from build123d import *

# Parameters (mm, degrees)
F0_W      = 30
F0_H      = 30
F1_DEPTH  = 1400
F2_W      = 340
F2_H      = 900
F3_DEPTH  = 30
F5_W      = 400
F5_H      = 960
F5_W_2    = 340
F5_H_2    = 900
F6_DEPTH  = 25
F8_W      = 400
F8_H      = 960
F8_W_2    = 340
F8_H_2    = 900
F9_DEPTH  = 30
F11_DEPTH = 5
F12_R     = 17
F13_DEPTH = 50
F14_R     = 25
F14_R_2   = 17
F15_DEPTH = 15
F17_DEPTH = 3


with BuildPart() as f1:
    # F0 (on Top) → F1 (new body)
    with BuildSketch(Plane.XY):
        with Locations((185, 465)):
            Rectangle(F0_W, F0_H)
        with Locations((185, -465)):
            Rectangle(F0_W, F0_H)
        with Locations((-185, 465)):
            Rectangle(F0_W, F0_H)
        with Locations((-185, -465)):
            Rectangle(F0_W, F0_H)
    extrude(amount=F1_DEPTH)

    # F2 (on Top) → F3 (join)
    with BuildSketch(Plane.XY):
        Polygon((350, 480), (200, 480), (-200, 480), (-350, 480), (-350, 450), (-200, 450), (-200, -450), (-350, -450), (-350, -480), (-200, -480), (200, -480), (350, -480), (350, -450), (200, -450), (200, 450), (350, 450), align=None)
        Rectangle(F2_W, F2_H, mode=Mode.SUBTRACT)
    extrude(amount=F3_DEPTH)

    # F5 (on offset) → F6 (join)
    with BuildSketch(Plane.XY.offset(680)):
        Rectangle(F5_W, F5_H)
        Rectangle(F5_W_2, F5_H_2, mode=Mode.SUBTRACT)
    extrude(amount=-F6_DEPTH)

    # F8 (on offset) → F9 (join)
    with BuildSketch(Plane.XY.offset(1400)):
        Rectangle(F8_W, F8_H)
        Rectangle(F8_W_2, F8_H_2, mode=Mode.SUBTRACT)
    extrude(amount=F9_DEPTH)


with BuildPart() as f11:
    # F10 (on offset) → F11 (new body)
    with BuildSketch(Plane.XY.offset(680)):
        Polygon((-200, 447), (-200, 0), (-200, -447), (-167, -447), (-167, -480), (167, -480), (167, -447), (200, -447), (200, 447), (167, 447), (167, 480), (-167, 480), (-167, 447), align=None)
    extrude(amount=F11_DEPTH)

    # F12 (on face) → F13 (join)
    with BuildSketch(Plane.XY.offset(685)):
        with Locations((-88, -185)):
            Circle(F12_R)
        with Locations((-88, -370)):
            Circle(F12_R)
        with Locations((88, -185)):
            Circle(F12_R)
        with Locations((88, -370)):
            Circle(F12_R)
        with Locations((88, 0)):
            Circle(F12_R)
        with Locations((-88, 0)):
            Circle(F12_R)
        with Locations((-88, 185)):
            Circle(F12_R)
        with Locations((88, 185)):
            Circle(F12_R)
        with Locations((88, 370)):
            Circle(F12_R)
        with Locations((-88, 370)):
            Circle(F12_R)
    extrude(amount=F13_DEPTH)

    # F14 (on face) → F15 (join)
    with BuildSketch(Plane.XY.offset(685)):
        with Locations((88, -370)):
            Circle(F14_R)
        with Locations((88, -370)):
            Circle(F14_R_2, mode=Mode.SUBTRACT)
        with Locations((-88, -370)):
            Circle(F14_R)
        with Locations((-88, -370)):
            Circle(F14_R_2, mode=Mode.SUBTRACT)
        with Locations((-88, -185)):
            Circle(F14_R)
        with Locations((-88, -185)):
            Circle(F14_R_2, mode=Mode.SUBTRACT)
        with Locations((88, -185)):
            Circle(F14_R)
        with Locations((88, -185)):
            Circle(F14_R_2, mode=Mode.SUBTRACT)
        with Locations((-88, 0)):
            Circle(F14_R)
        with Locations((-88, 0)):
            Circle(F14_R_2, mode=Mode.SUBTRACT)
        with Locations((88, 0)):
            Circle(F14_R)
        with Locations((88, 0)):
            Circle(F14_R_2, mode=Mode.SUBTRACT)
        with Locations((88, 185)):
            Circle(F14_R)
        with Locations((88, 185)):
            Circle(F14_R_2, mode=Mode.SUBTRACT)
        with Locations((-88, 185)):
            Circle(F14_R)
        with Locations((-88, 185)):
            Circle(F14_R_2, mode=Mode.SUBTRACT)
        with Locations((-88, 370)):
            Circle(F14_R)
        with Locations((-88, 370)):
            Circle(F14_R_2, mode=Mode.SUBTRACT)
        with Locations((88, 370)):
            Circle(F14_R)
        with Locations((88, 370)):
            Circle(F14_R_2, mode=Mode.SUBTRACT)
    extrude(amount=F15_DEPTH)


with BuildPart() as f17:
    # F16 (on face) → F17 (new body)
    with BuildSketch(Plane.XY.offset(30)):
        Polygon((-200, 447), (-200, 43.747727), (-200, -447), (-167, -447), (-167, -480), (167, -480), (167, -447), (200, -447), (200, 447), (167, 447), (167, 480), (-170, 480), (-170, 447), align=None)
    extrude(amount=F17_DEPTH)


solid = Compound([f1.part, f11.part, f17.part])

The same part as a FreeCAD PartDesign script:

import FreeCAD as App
import Part
import Sketcher
from FreeCAD import Vector
Q = App.Units.Quantity


def add_polygon(sketch, points):
    """Adds a closed chain of lines whose ends are joined by coincident constraints."""
    first, n = sketch.GeometryCount, len(points)
    for a, b in zip(points, points[1:] + points[:1]):
        sketch.addGeometry(Part.LineSegment(App.Vector(*a, 0), App.Vector(*b, 0)), False)
    for i in range(n):
        sketch.addConstraint(Sketcher.Constraint("Coincident", first + i, 2, first + (i + 1) % n, 1))

doc = App.newDocument("Part")
body = doc.addObject("PartDesign::Body", "Body")
body.AllowCompound = True

# Sketch on XY plane
sketch1 = body.newObject("Sketcher::SketchObject", "Sketch")
sketch1.AttachmentSupport = (doc.getObject("XY_Plane"), [""])
sketch1.MapMode = "FlatFace"
add_polygon(sketch1, [(170, 480), (170, 450), (200, 450), (200, 480)])  # lines 0-3
add_polygon(sketch1, [(170, -450), (170, -480), (200, -480), (200, -450)])  # lines 4-7
add_polygon(sketch1, [(-200, 480), (-200, 450), (-170, 450), (-170, 480)])  # lines 8-11
add_polygon(sketch1, [(-200, -450), (-200, -480), (-170, -480), (-170, -450)])  # lines 12-15
sketch1.addConstraint(Sketcher.Constraint("Vertical", 0))
sketch1.addConstraint(Sketcher.Constraint("Horizontal", 1))
sketch1.addConstraint(Sketcher.Constraint("Vertical", 2))
sketch1.addConstraint(Sketcher.Constraint("Horizontal", 3))
sketch1.addConstraint(Sketcher.Constraint("Vertical", 4))
sketch1.addConstraint(Sketcher.Constraint("Horizontal", 5))
sketch1.addConstraint(Sketcher.Constraint("Vertical", 6))
sketch1.addConstraint(Sketcher.Constraint("Horizontal", 7))
sketch1.addConstraint(Sketcher.Constraint("Vertical", 8))
sketch1.addConstraint(Sketcher.Constraint("Horizontal", 9))
sketch1.addConstraint(Sketcher.Constraint("Vertical", 10))
sketch1.addConstraint(Sketcher.Constraint("Horizontal", 11))
sketch1.addConstraint(Sketcher.Constraint("Vertical", 12))
sketch1.addConstraint(Sketcher.Constraint("Horizontal", 13))
sketch1.addConstraint(Sketcher.Constraint("Vertical", 14))
sketch1.addConstraint(Sketcher.Constraint("Horizontal", 15))
sketch1.addConstraint(Sketcher.Constraint("Symmetric", 6, 2, 8, 2, -1, 1))
sketch1.addConstraint(Sketcher.Constraint("Symmetric", 4, 2, 10, 2, -1, 1))
sketch1.addConstraint(Sketcher.Constraint("Symmetric", 2, 2, 12, 2, -1, 1))
sketch1.addConstraint(Sketcher.Constraint("Symmetric", 0, 2, 14, 2, -1, 1))
sketch1.addConstraint(Sketcher.Constraint("Symmetric", 1, 2, 8, 2, -2))
sketch1.addConstraint(Sketcher.Constraint("Symmetric", 3, 2, 10, 2, -2))
sketch1.addConstraint(Sketcher.Constraint("Equal", 15, 0))
sketch1.addConstraint(Sketcher.Constraint("DistanceX", 1, 1, 1, 2, Q("30 mm")))
sketch1.addConstraint(Sketcher.Constraint("DistanceX", -1, 1, 0, 2, Q("170 mm")))
sketch1.addConstraint(Sketcher.Constraint("DistanceY", -1, 1, 0, 2, Q("450 mm")))
pad1 = body.newObject("PartDesign::Pad", "Pad")
pad1.Profile = sketch1
pad1.Length = 1400

# Sketch on XY plane
sketch2 = body.newObject("Sketcher::SketchObject", "Sketch001")
sketch2.AttachmentSupport = (doc.getObject("XY_Plane"), [""])
sketch2.MapMode = "FlatFace"
add_polygon(sketch2, [(350, 480), (-350, 480), (-350, 450), (-200, 450), (-200, -450), (-350, -450), (-350, -480), (350, -480), (350, -450), (200, -450), (200, 450), (350, 450)])  # lines 0-11
add_polygon(sketch2, [(170, -450), (-170, -450), (-170, 450), (170, 450)])  # lines 12-15
sketch2.addConstraint(Sketcher.Constraint("Horizontal", 0))
sketch2.addConstraint(Sketcher.Constraint("Vertical", 1))
sketch2.addConstraint(Sketcher.Constraint("Horizontal", 2))
sketch2.addConstraint(Sketcher.Constraint("Vertical", 3))
sketch2.addConstraint(Sketcher.Constraint("Horizontal", 4))
sketch2.addConstraint(Sketcher.Constraint("Vertical", 5))
sketch2.addConstraint(Sketcher.Constraint("Horizontal", 6))
sketch2.addConstraint(Sketcher.Constraint("Vertical", 7))
sketch2.addConstraint(Sketcher.Constraint("Horizontal", 8))
sketch2.addConstraint(Sketcher.Constraint("Vertical", 9))
sketch2.addConstraint(Sketcher.Constraint("Horizontal", 10))
sketch2.addConstraint(Sketcher.Constraint("Vertical", 11))
sketch2.addConstraint(Sketcher.Constraint("Horizontal", 12))
sketch2.addConstraint(Sketcher.Constraint("Vertical", 13))
sketch2.addConstraint(Sketcher.Constraint("Horizontal", 14))
sketch2.addConstraint(Sketcher.Constraint("Vertical", 15))
sketch2.addConstraint(Sketcher.Constraint("Symmetric", 0, 2, 6, 2, -1, 1))
sketch2.addConstraint(Sketcher.Constraint("Symmetric", 2, 2, 8, 2, -1, 1))
sketch2.addConstraint(Sketcher.Constraint("Symmetric", 4, 2, 10, 2, -1, 1))
sketch2.addConstraint(Sketcher.Constraint("Symmetric", 12, 2, 14, 2, -1, 1))
sketch2.addConstraint(Sketcher.Constraint("Symmetric", 4, 2, 7, 2, -2))
sketch2.addConstraint(Sketcher.Constraint("Horizontal", 8, 2, 12, 2))
sketch2.addConstraint(Sketcher.Constraint("DistanceX", 0, 2, 0, 1, Q("700 mm")))
sketch2.addConstraint(Sketcher.Constraint("DistanceX", 2, 1, 2, 2, Q("150 mm")))
sketch2.addConstraint(Sketcher.Constraint("DistanceX", 12, 2, 12, 1, Q("340 mm")))
sketch2.addConstraint(Sketcher.Constraint("DistanceY", 1, 2, 1, 1, Q("30 mm")))
sketch2.addConstraint(Sketcher.Constraint("DistanceY", 3, 2, 3, 1, Q("900 mm")))
pad2 = body.newObject("PartDesign::Pad", "Pad001")
pad2.Profile = sketch2
pad2.Length = 30

# Sketch on XY plane
sketch3 = body.newObject("Sketcher::SketchObject", "Sketch002")
sketch3.AttachmentSupport = (doc.getObject("XY_Plane"), [""])
sketch3.MapMode = "FlatFace"
sketch3.AttachmentOffset = App.Placement(Vector(0, 0, 680), App.Rotation())
add_polygon(sketch3, [(-200, 480), (-200, -480), (200, -480), (200, 480)])  # lines 0-3
add_polygon(sketch3, [(170, -450), (-170, -450), (-170, 450), (170, 450)])  # lines 4-7
sketch3.addConstraint(Sketcher.Constraint("Vertical", 0))
sketch3.addConstraint(Sketcher.Constraint("Horizontal", 1))
sketch3.addConstraint(Sketcher.Constraint("Vertical", 2))
sketch3.addConstraint(Sketcher.Constraint("Horizontal", 3))
sketch3.addConstraint(Sketcher.Constraint("Horizontal", 4))
sketch3.addConstraint(Sketcher.Constraint("Vertical", 5))
sketch3.addConstraint(Sketcher.Constraint("Horizontal", 6))
sketch3.addConstraint(Sketcher.Constraint("Vertical", 7))
sketch3.addConstraint(Sketcher.Constraint("Symmetric", 0, 2, 2, 2, -1, 1))
sketch3.addConstraint(Sketcher.Constraint("Symmetric", 4, 2, 6, 2, -1, 1))
sketch3.addConstraint(Sketcher.Constraint("DistanceX", 1, 1, 1, 2, Q("400 mm")))
sketch3.addConstraint(Sketcher.Constraint("DistanceX", 4, 2, 4, 1, Q("340 mm")))
sketch3.addConstraint(Sketcher.Constraint("DistanceY", 0, 2, 0, 1, Q("960 mm")))
sketch3.addConstraint(Sketcher.Constraint("DistanceY", 5, 1, 5, 2, Q("900 mm")))
pad3 = body.newObject("PartDesign::Pad", "Pad002")
pad3.Profile = sketch3
pad3.Length = 25
pad3.Reversed = True

# Sketch on XY plane
sketch4 = body.newObject("Sketcher::SketchObject", "Sketch003")
sketch4.AttachmentSupport = (doc.getObject("XY_Plane"), [""])
sketch4.MapMode = "FlatFace"
sketch4.AttachmentOffset = App.Placement(Vector(0, 0, 1400), App.Rotation())
add_polygon(sketch4, [(-200, 480), (-200, -480), (200, -480), (200, 480)])  # lines 0-3
add_polygon(sketch4, [(170, -450), (-170, -450), (-170, 450), (170, 450)])  # lines 4-7
sketch4.addConstraint(Sketcher.Constraint("Vertical", 0))
sketch4.addConstraint(Sketcher.Constraint("Horizontal", 1))
sketch4.addConstraint(Sketcher.Constraint("Vertical", 2))
sketch4.addConstraint(Sketcher.Constraint("Horizontal", 3))
sketch4.addConstraint(Sketcher.Constraint("Horizontal", 4))
sketch4.addConstraint(Sketcher.Constraint("Vertical", 5))
sketch4.addConstraint(Sketcher.Constraint("Horizontal", 6))
sketch4.addConstraint(Sketcher.Constraint("Vertical", 7))
sketch4.addConstraint(Sketcher.Constraint("Symmetric", 0, 2, 2, 2, -1, 1))
sketch4.addConstraint(Sketcher.Constraint("Symmetric", 4, 2, 6, 2, -1, 1))
sketch4.addConstraint(Sketcher.Constraint("DistanceX", 1, 1, 1, 2, Q("400 mm")))
sketch4.addConstraint(Sketcher.Constraint("DistanceX", 4, 2, 4, 1, Q("340 mm")))
sketch4.addConstraint(Sketcher.Constraint("DistanceY", 0, 2, 0, 1, Q("960 mm")))
sketch4.addConstraint(Sketcher.Constraint("DistanceY", 5, 1, 5, 2, Q("900 mm")))
pad4 = body.newObject("PartDesign::Pad", "Pad003")
pad4.Profile = sketch4
pad4.Length = 30
body2 = doc.addObject("PartDesign::Body", "Body001")

# Sketch on XY plane
sketch5 = body2.newObject("Sketcher::SketchObject", "Sketch004")
sketch5.AttachmentSupport = (doc.getObject("XY_Plane001"), [""])
sketch5.MapMode = "FlatFace"
sketch5.AttachmentOffset = App.Placement(Vector(0, 0, 680), App.Rotation())
add_polygon(sketch5, [(-200, 447), (-200, -447), (-167, -447), (-167, -480), (167, -480), (167, -447), (200, -447), (200, 447), (167, 447), (167, 480), (-167, 480), (-167, 447)])  # lines 0-11
sketch5.addConstraint(Sketcher.Constraint("Vertical", 0))
sketch5.addConstraint(Sketcher.Constraint("Horizontal", 1))
sketch5.addConstraint(Sketcher.Constraint("Vertical", 2))
sketch5.addConstraint(Sketcher.Constraint("Horizontal", 3))
sketch5.addConstraint(Sketcher.Constraint("Vertical", 4))
sketch5.addConstraint(Sketcher.Constraint("Horizontal", 5))
sketch5.addConstraint(Sketcher.Constraint("Vertical", 6))
sketch5.addConstraint(Sketcher.Constraint("Horizontal", 7))
sketch5.addConstraint(Sketcher.Constraint("Vertical", 8))
sketch5.addConstraint(Sketcher.Constraint("Horizontal", 9))
sketch5.addConstraint(Sketcher.Constraint("Vertical", 10))
sketch5.addConstraint(Sketcher.Constraint("Horizontal", 11))
sketch5.addConstraint(Sketcher.Constraint("Symmetric", 0, 2, 6, 2, -1, 1))
sketch5.addConstraint(Sketcher.Constraint("Symmetric", 2, 2, 8, 2, -1, 1))
sketch5.addConstraint(Sketcher.Constraint("Symmetric", 4, 2, 10, 2, -1, 1))
sketch5.addConstraint(Sketcher.Constraint("Symmetric", 1, 2, 4, 2, -2))
sketch5.addConstraint(Sketcher.Constraint("Equal", 11, 2))
sketch5.addConstraint(Sketcher.Constraint("DistanceX", 1, 1, 1, 2, Q("33 mm")))
sketch5.addConstraint(Sketcher.Constraint("DistanceX", 3, 1, 3, 2, Q("334 mm")))
sketch5.addConstraint(Sketcher.Constraint("DistanceY", 0, 2, 0, 1, Q("894 mm")))
pad5 = body2.newObject("PartDesign::Pad", "Pad004")
pad5.Profile = sketch5
pad5.Length = 5

# Sketch on XY plane
sketch6 = body2.newObject("Sketcher::SketchObject", "Sketch005")
sketch6.AttachmentSupport = (doc.getObject("XY_Plane001"), [""])
sketch6.MapMode = "FlatFace"
sketch6.AttachmentOffset = App.Placement(Vector(0, 0, 685), App.Rotation())
sketch6.addGeometry(Part.Circle(Vector(-88, -185, 0), Vector(0, 0, 1), 17), False)
sketch6.addGeometry(Part.Circle(Vector(-88, -370, 0), Vector(0, 0, 1), 17), False)
sketch6.addGeometry(Part.Circle(Vector(88, -185, 0), Vector(0, 0, 1), 17), False)
sketch6.addGeometry(Part.Circle(Vector(88, -370, 0), Vector(0, 0, 1), 17), False)
sketch6.addGeometry(Part.Circle(Vector(88, 0, 0), Vector(0, 0, 1), 17), False)
sketch6.addGeometry(Part.Circle(Vector(-88, 0, 0), Vector(0, 0, 1), 17), False)
sketch6.addGeometry(Part.Circle(Vector(-88, 185, 0), Vector(0, 0, 1), 17), False)
sketch6.addGeometry(Part.Circle(Vector(88, 185, 0), Vector(0, 0, 1), 17), False)
sketch6.addGeometry(Part.Circle(Vector(88, 370, 0), Vector(0, 0, 1), 17), False)
sketch6.addGeometry(Part.Circle(Vector(-88, 370, 0), Vector(0, 0, 1), 17), False)
sketch6.addConstraint(Sketcher.Constraint("Equal", 0, 1))
sketch6.addConstraint(Sketcher.Constraint("Equal", 1, 2))
sketch6.addConstraint(Sketcher.Constraint("Equal", 2, 3))
sketch6.addConstraint(Sketcher.Constraint("Equal", 3, 4))
sketch6.addConstraint(Sketcher.Constraint("Equal", 4, 5))
sketch6.addConstraint(Sketcher.Constraint("Equal", 5, 6))
sketch6.addConstraint(Sketcher.Constraint("Equal", 6, 7))
sketch6.addConstraint(Sketcher.Constraint("Equal", 7, 8))
sketch6.addConstraint(Sketcher.Constraint("Equal", 8, 9))
sketch6.addConstraint(Sketcher.Constraint("Symmetric", 4, 3, 5, 3, -1, 1))
sketch6.addConstraint(Sketcher.Constraint("Symmetric", 2, 3, 6, 3, -1, 1))
sketch6.addConstraint(Sketcher.Constraint("Symmetric", 0, 3, 7, 3, -1, 1))
sketch6.addConstraint(Sketcher.Constraint("Symmetric", 1, 3, 8, 3, -1, 1))
sketch6.addConstraint(Sketcher.Constraint("Symmetric", 3, 3, 9, 3, -1, 1))
sketch6.addConstraint(Sketcher.Constraint("Symmetric", 0, 3, 2, 3, -2))
sketch6.addConstraint(Sketcher.Constraint("Symmetric", 1, 3, 3, 3, -2))
sketch6.addConstraint(Sketcher.Constraint("PointOnObject", 4, 3, -1))
sketch6.addConstraint(Sketcher.Constraint("Vertical", 0, 3, 1, 3))
sketch6.addConstraint(Sketcher.Constraint("Vertical", 3, 3, 4, 3))
sketch6.addConstraint(Sketcher.Constraint("Diameter", 0, Q("34 mm")))
sketch6.addConstraint(Sketcher.Constraint("DistanceX", 0, 3, -1, 1, Q("88 mm")))
sketch6.addConstraint(Sketcher.Constraint("DistanceY", 0, 3, -1, 1, Q("185 mm")))
sketch6.addConstraint(Sketcher.Constraint("DistanceY", 1, 3, -1, 1, Q("370 mm")))
pad6 = body2.newObject("PartDesign::Pad", "Pad005")
pad6.Profile = sketch6
pad6.Length = 50

# Sketch on XY plane
sketch7 = body2.newObject("Sketcher::SketchObject", "Sketch006")
sketch7.AttachmentSupport = (doc.getObject("XY_Plane001"), [""])
sketch7.MapMode = "FlatFace"
sketch7.AttachmentOffset = App.Placement(Vector(0, 0, 685), App.Rotation())
sketch7.addGeometry(Part.Circle(Vector(88, -370, 0), Vector(0, 0, 1), 25), False)
sketch7.addGeometry(Part.Circle(Vector(88, -370, 0), Vector(0, 0, 1), 17), False)
sketch7.addGeometry(Part.Circle(Vector(-88, -370, 0), Vector(0, 0, 1), 25), False)
sketch7.addGeometry(Part.Circle(Vector(-88, -370, 0), Vector(0, 0, 1), 17), False)
sketch7.addGeometry(Part.Circle(Vector(-88, -185, 0), Vector(0, 0, 1), 25), False)
sketch7.addGeometry(Part.Circle(Vector(-88, -185, 0), Vector(0, 0, 1), 17), False)
sketch7.addGeometry(Part.Circle(Vector(88, -185, 0), Vector(0, 0, 1), 25), False)
sketch7.addGeometry(Part.Circle(Vector(88, -185, 0), Vector(0, 0, 1), 17), False)
sketch7.addGeometry(Part.Circle(Vector(-88, 0, 0), Vector(0, 0, 1), 25), False)
sketch7.addGeometry(Part.Circle(Vector(-88, 0, 0), Vector(0, 0, 1), 17), False)
sketch7.addGeometry(Part.Circle(Vector(88, 0, 0), Vector(0, 0, 1), 25), False)
sketch7.addGeometry(Part.Circle(Vector(88, 0, 0), Vector(0, 0, 1), 17), False)
sketch7.addGeometry(Part.Circle(Vector(88, 185, 0), Vector(0, 0, 1), 25), False)
sketch7.addGeometry(Part.Circle(Vector(88, 185, 0), Vector(0, 0, 1), 17), False)
sketch7.addGeometry(Part.Circle(Vector(-88, 185, 0), Vector(0, 0, 1), 25), False)
sketch7.addGeometry(Part.Circle(Vector(-88, 185, 0), Vector(0, 0, 1), 17), False)
sketch7.addGeometry(Part.Circle(Vector(-88, 370, 0), Vector(0, 0, 1), 25), False)
sketch7.addGeometry(Part.Circle(Vector(-88, 370, 0), Vector(0, 0, 1), 17), False)
sketch7.addGeometry(Part.Circle(Vector(88, 370, 0), Vector(0, 0, 1), 25), False)
sketch7.addGeometry(Part.Circle(Vector(88, 370, 0), Vector(0, 0, 1), 17), False)
sketch7.addConstraint(Sketcher.Constraint("Coincident", 1, 3, 0, 3))
sketch7.addConstraint(Sketcher.Constraint("Coincident", 3, 3, 2, 3))
sketch7.addConstraint(Sketcher.Constraint("Coincident", 5, 3, 4, 3))
sketch7.addConstraint(Sketcher.Constraint("Coincident", 7, 3, 6, 3))
sketch7.addConstraint(Sketcher.Constraint("Coincident", 9, 3, 8, 3))
sketch7.addConstraint(Sketcher.Constraint("Coincident", 11, 3, 10, 3))
sketch7.addConstraint(Sketcher.Constraint("Coincident", 13, 3, 12, 3))
sketch7.addConstraint(Sketcher.Constraint("Coincident", 15, 3, 14, 3))
sketch7.addConstraint(Sketcher.Constraint("Coincident", 17, 3, 16, 3))
sketch7.addConstraint(Sketcher.Constraint("Coincident", 19, 3, 18, 3))
sketch7.addConstraint(Sketcher.Constraint("Equal", 0, 2))
sketch7.addConstraint(Sketcher.Constraint("Equal", 1, 3))
sketch7.addConstraint(Sketcher.Constraint("Equal", 2, 4))
sketch7.addConstraint(Sketcher.Constraint("Equal", 3, 5))
sketch7.addConstraint(Sketcher.Constraint("Equal", 4, 6))
sketch7.addConstraint(Sketcher.Constraint("Equal", 5, 7))
sketch7.addConstraint(Sketcher.Constraint("Equal", 6, 8))
sketch7.addConstraint(Sketcher.Constraint("Equal", 7, 9))
sketch7.addConstraint(Sketcher.Constraint("Equal", 8, 10))
sketch7.addConstraint(Sketcher.Constraint("Equal", 9, 11))
sketch7.addConstraint(Sketcher.Constraint("Equal", 10, 12))
sketch7.addConstraint(Sketcher.Constraint("Equal", 11, 13))
sketch7.addConstraint(Sketcher.Constraint("Equal", 12, 14))
sketch7.addConstraint(Sketcher.Constraint("Equal", 13, 15))
sketch7.addConstraint(Sketcher.Constraint("Equal", 14, 16))
sketch7.addConstraint(Sketcher.Constraint("Equal", 15, 17))
sketch7.addConstraint(Sketcher.Constraint("Equal", 16, 18))
sketch7.addConstraint(Sketcher.Constraint("Equal", 17, 19))
sketch7.addConstraint(Sketcher.Constraint("Symmetric", 8, 3, 10, 3, -1, 1))
sketch7.addConstraint(Sketcher.Constraint("Symmetric", 4, 3, 12, 3, -1, 1))
sketch7.addConstraint(Sketcher.Constraint("Symmetric", 6, 3, 14, 3, -1, 1))
sketch7.addConstraint(Sketcher.Constraint("Symmetric", 0, 3, 16, 3, -1, 1))
sketch7.addConstraint(Sketcher.Constraint("Symmetric", 2, 3, 18, 3, -1, 1))
sketch7.addConstraint(Sketcher.Constraint("Symmetric", 0, 3, 2, 3, -2))
sketch7.addConstraint(Sketcher.Constraint("Symmetric", 4, 3, 6, 3, -2))
sketch7.addConstraint(Sketcher.Constraint("PointOnObject", 8, 3, -1))
sketch7.addConstraint(Sketcher.Constraint("Vertical", 3, 3, 4, 3))
sketch7.addConstraint(Sketcher.Constraint("Vertical", 5, 3, 8, 3))
sketch7.addConstraint(Sketcher.Constraint("Diameter", 0, Q("50 mm")))
sketch7.addConstraint(Sketcher.Constraint("Diameter", 1, Q("34 mm")))
sketch7.addConstraint(Sketcher.Constraint("DistanceX", -1, 1, 0, 3, Q("88 mm")))
sketch7.addConstraint(Sketcher.Constraint("DistanceY", 0, 3, -1, 1, Q("370 mm")))
sketch7.addConstraint(Sketcher.Constraint("DistanceY", 4, 3, -1, 1, Q("185 mm")))
pad7 = body2.newObject("PartDesign::Pad", "Pad006")
pad7.Profile = sketch7
pad7.Length = 15
body3 = doc.addObject("PartDesign::Body", "Body002")

# Sketch on XY plane
sketch8 = body3.newObject("Sketcher::SketchObject", "Sketch007")
sketch8.AttachmentSupport = (doc.getObject("XY_Plane002"), [""])
sketch8.MapMode = "FlatFace"
sketch8.AttachmentOffset = App.Placement(Vector(0, 0, 30), App.Rotation())
add_polygon(sketch8, [(-200, 447), (-200, -447), (-167, -447), (-167, -480), (167, -480), (167, -447), (200, -447), (200, 447), (167, 447), (167, 480), (-170, 480), (-170, 447)])  # lines 0-11
sketch8.addConstraint(Sketcher.Constraint("Vertical", 0))
sketch8.addConstraint(Sketcher.Constraint("Horizontal", 1))
sketch8.addConstraint(Sketcher.Constraint("Vertical", 2))
sketch8.addConstraint(Sketcher.Constraint("Horizontal", 3))
sketch8.addConstraint(Sketcher.Constraint("Vertical", 4))
sketch8.addConstraint(Sketcher.Constraint("Horizontal", 5))
sketch8.addConstraint(Sketcher.Constraint("Vertical", 6))
sketch8.addConstraint(Sketcher.Constraint("Horizontal", 7))
sketch8.addConstraint(Sketcher.Constraint("Vertical", 8))
sketch8.addConstraint(Sketcher.Constraint("Horizontal", 9))
sketch8.addConstraint(Sketcher.Constraint("Vertical", 10))
sketch8.addConstraint(Sketcher.Constraint("Horizontal", 11))
sketch8.addConstraint(Sketcher.Constraint("Symmetric", 0, 2, 6, 2, -1, 1))
sketch8.addConstraint(Sketcher.Constraint("Symmetric", 2, 2, 8, 2, -1, 1))
sketch8.addConstraint(Sketcher.Constraint("Symmetric", 1, 2, 4, 2, -2))
sketch8.addConstraint(Sketcher.Constraint("Horizontal", 7, 2, 10, 2))
sketch8.addConstraint(Sketcher.Constraint("Equal", 7, 2))
sketch8.addConstraint(Sketcher.Constraint("DistanceX", 1, 1, 1, 2, Q("33 mm")))
sketch8.addConstraint(Sketcher.Constraint("DistanceX", 3, 1, 3, 2, Q("334 mm")))
sketch8.addConstraint(Sketcher.Constraint("DistanceX", 9, 2, 9, 1, Q("337 mm")))
sketch8.addConstraint(Sketcher.Constraint("DistanceY", 0, 2, 0, 1, Q("894 mm")))
pad8 = body3.newObject("PartDesign::Pad", "Pad007")
pad8.Profile = sketch8
pad8.Length = 3

doc.recompute()
